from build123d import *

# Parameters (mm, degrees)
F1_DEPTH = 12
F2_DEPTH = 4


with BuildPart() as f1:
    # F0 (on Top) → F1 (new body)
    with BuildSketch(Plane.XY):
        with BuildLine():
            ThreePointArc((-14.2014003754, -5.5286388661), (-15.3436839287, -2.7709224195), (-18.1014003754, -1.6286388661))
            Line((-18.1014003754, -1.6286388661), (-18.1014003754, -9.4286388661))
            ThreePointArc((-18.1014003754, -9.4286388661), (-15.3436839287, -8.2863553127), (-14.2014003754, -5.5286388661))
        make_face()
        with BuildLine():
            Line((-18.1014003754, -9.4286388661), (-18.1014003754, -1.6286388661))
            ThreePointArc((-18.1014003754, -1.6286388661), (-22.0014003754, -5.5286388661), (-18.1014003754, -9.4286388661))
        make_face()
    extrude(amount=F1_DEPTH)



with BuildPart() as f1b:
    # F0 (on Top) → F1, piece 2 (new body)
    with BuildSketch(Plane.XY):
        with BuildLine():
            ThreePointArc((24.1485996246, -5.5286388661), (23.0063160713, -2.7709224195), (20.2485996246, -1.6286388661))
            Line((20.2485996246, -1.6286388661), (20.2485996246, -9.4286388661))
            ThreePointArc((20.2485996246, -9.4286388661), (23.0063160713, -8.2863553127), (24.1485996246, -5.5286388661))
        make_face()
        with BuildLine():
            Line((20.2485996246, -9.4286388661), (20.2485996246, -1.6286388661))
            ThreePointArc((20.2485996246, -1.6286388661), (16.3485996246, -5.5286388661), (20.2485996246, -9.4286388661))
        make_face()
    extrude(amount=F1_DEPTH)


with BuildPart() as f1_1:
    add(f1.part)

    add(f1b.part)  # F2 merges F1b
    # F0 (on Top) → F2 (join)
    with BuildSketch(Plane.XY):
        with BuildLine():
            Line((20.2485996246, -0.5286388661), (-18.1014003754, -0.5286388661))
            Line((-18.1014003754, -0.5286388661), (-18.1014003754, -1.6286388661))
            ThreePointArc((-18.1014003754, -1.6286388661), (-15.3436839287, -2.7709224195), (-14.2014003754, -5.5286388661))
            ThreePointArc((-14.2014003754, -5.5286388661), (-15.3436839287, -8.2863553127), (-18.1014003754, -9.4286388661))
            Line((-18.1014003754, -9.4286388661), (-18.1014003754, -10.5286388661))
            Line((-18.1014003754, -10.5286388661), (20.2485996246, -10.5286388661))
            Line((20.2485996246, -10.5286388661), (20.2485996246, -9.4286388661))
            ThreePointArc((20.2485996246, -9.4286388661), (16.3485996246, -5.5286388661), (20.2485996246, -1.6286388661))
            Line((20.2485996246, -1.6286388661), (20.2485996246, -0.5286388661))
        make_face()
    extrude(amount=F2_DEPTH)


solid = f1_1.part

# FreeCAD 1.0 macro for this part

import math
import FreeCAD as App
import Part
import Sketcher
Q = App.Units.Quantity

doc = App.newDocument("Part")
params = doc.addObject("Spreadsheet::Sheet", "Params")
for row, (alias, value) in enumerate([
    ("sketch1_radius", "3.9 mm"),
    ("pad1_length", "12 mm"),
    ("sketch2_radius", "3.9 mm"),
    ("pad2_length", "12 mm"),
    ("sketch3_radius", "3.9 mm"),
    ("sketch3_height", "1.1 mm"),
    ("sketch3_width", "38.35 mm"),
    ("pad3_length", "4 mm"),
], start=1):
    params.set(f"A{row}", alias)
    params.set(f"B{row}", "=" + value)
    params.setAlias(f"B{row}", alias)

body = doc.addObject("PartDesign::Body", "Body")

# Sketch on XY plane
sketch1 = doc.addObject("Sketcher::SketchObject", "Sketch")
body.addObject(sketch1)
sketch1.AttachmentSupport = (doc.XY_Plane, [""])
sketch1.MapMode = "FlatFace"
sketch1.addGeometry(Part.ArcOfCircle(Part.Circle(App.Vector(-18.1, -5.5, 0), App.Vector(0, 0, 1), 3.9), math.radians(0), math.radians(90)), False)
sketch1.addGeometry(Part.ArcOfCircle(Part.Circle(App.Vector(-18.1, -5.5, 0), App.Vector(0, 0, 1), 3.9), math.radians(90), math.radians(270)), False)
sketch1.addGeometry(Part.ArcOfCircle(Part.Circle(App.Vector(-18.1, -5.5, 0), App.Vector(0, 0, 1), 3.9), math.radians(-90), math.radians(0)), False)
sketch1.addConstraint(Sketcher.Constraint("Tangent", 0, 2, 1, 1))
sketch1.addConstraint(Sketcher.Constraint("Tangent", 1, 2, 2, 1))
sketch1.addConstraint(Sketcher.Constraint("Tangent", 2, 2, 0, 1))
sketch1.addConstraint(Sketcher.Constraint("Horizontal", 1, 3, 2, 2))
sketch1.addConstraint(Sketcher.Constraint("Vertical", 2, 3, 0, 2))
sketch1.addConstraint(Sketcher.Constraint("Vertical", 0, 2, 1, 2))
sketch1.addConstraint(Sketcher.Constraint("Radius", 0, Q("3.9 mm")))
sketch1.addConstraint(Sketcher.Constraint("DistanceX", 0, 3, -1, 1, Q("18.1014 mm")))
sketch1.addConstraint(Sketcher.Constraint("DistanceY", 0, 3, -1, 1, Q("5.528639 mm")))
sketch1.setExpression("Constraints[6]", "Params.sketch1_radius")
pad1 = doc.addObject("PartDesign::Pad", "Pad")
body.addObject(pad1)
pad1.Profile = sketch1
pad1.setExpression("Length", "Params.pad1_length")
body2 = doc.addObject("PartDesign::Body", "Body001")

# Sketch on XY plane
sketch2 = doc.addObject("Sketcher::SketchObject", "Sketch001")
body2.addObject(sketch2)
sketch2.AttachmentSupport = (doc.getObject("XY_Plane001"), [""])
sketch2.MapMode = "FlatFace"
sketch2.addGeometry(Part.ArcOfCircle(Part.Circle(App.Vector(20.2, -5.5, 0), App.Vector(0, 0, 1), 3.9), math.radians(0), math.radians(90)), False)
sketch2.addGeometry(Part.ArcOfCircle(Part.Circle(App.Vector(20.2, -5.5, 0), App.Vector(0, 0, 1), 3.9), math.radians(90), math.radians(270)), False)
sketch2.addGeometry(Part.ArcOfCircle(Part.Circle(App.Vector(20.2, -5.5, 0), App.Vector(0, 0, 1), 3.9), math.radians(-90), math.radians(0)), False)
sketch2.addConstraint(Sketcher.Constraint("Tangent", 0, 2, 1, 1))
sketch2.addConstraint(Sketcher.Constraint("Tangent", 1, 2, 2, 1))
sketch2.addConstraint(Sketcher.Constraint("Tangent", 2, 2, 0, 1))
sketch2.addConstraint(Sketcher.Constraint("Horizontal", 1, 3, 2, 2))
sketch2.addConstraint(Sketcher.Constraint("Vertical", 2, 3, 0, 2))
sketch2.addConstraint(Sketcher.Constraint("Vertical", 0, 2, 1, 2))
sketch2.addConstraint(Sketcher.Constraint("Radius", 0, Q("3.9 mm")))
sketch2.addConstraint(Sketcher.Constraint("DistanceX", -1, 1, 0, 3, Q("20.2486 mm")))
sketch2.addConstraint(Sketcher.Constraint("DistanceY", 0, 3, -1, 1, Q("5.528639 mm")))
sketch2.setExpression("Constraints[6]", "Params.sketch2_radius")
pad2 = doc.addObject("PartDesign::Pad", "Pad001")
body2.addObject(pad2)
pad2.Profile = sketch2
pad2.setExpression("Length", "Params.pad2_length")
body.AllowCompound = True
doc.recompute()

boolean = doc.addObject("PartDesign::Boolean", "Boolean")
body.addObject(boolean)
boolean.Type = "Fuse"
boolean.addObjects([body2])

# Sketch on XY plane
sketch3 = doc.addObject("Sketcher::SketchObject", "Sketch002")
body.addObject(sketch3)
sketch3.AttachmentSupport = (doc.XY_Plane, [""])
sketch3.MapMode = "FlatFace"
sketch3.addGeometry(Part.LineSegment(App.Vector(20.2, -0.5, 0), App.Vector(-18.1, -0.5, 0)), False)
sketch3.addGeometry(Part.LineSegment(App.Vector(-18.1, -0.5, 0), App.Vector(-18.1, -1.6, 0)), False)
sketch3.addGeometry(Part.ArcOfCircle(Part.Circle(App.Vector(-18.1, -5.5, 0), App.Vector(0, 0, 1), 3.9), math.radians(0), math.radians(90)), False)
sketch3.addGeometry(Part.ArcOfCircle(Part.Circle(App.Vector(-18.1, -5.5, 0), App.Vector(0, 0, 1), 3.9), math.radians(-90), math.radians(0)), False)
sketch3.addGeometry(Part.LineSegment(App.Vector(-18.1, -9.4, 0), App.Vector(-18.1, -10.5, 0)), False)
sketch3.addGeometry(Part.LineSegment(App.Vector(-18.1, -10.5, 0), App.Vector(20.2, -10.5, 0)), False)
sketch3.addGeometry(Part.LineSegment(App.Vector(20.2, -10.5, 0), App.Vector(20.2, -9.4, 0)), False)
sketch3.addGeometry(Part.ArcOfCircle(Part.Circle(App.Vector(20.2, -5.5, 0), App.Vector(0, 0, 1), 3.9), math.radians(90), math.radians(270)), False)
sketch3.addGeometry(Part.LineSegment(App.Vector(20.2, -1.6, 0), App.Vector(20.2, -0.5, 0)), False)
sketch3.addConstraint(Sketcher.Constraint("Coincident", 0, 2, 1, 1))
sketch3.addConstraint(Sketcher.Constraint("Coincident", 1, 2, 2, 2))
sketch3.addConstraint(Sketcher.Constraint("Tangent", 2, 1, 3, 2))
sketch3.addConstraint(Sketcher.Constraint("Coincident", 3, 1, 4, 1))
sketch3.addConstraint(Sketcher.Constraint("Coincident", 4, 2, 5, 1))
sketch3.addConstraint(Sketcher.Constraint("Coincident", 5, 2, 6, 1))
sketch3.addConstraint(Sketcher.Constraint("Coincident", 6, 2, 7, 2))
sketch3.addConstraint(Sketcher.Constraint("Coincident", 7, 1, 8, 1))
sketch3.addConstraint(Sketcher.Constraint("Coincident", 8, 2, 0, 1))
sketch3.addConstraint(Sketcher.Constraint("Horizontal", 0))
sketch3.addConstraint(Sketcher.Constraint("Vertical", 1))
sketch3.addConstraint(Sketcher.Constraint("Vertical", 4))
sketch3.addConstraint(Sketcher.Constraint("Horizontal", 5))
sketch3.addConstraint(Sketcher.Constraint("Vertical", 6))
sketch3.addConstraint(Sketcher.Constraint("Vertical", 8))
sketch3.addConstraint(Sketcher.Constraint("Equal", 2, 3))
sketch3.addConstraint(Sketcher.Constraint("Equal", 3, 7))
sketch3.addConstraint(Sketcher.Constraint("Horizontal", 3, 3, 7, 3))
sketch3.addConstraint(Sketcher.Constraint("Horizontal", 7, 3, 2, 1))
sketch3.addConstraint(Sketcher.Constraint("Vertical", 3, 3, 0, 2))
sketch3.addConstraint(Sketcher.Constraint("Vertical", 1, 2, 3, 1))
sketch3.addConstraint(Sketcher.Constraint("Vertical", 7, 3, 5, 2))
sketch3.addConstraint(Sketcher.Constraint("Vertical", 6, 2, 7, 1))
sketch3.addConstraint(Sketcher.Constraint("Equal", 1, 4))
sketch3.addConstraint(Sketcher.Constraint("Radius", 2, Q("3.9 mm")))
sketch3.addConstraint(Sketcher.Constraint("DistanceY", 1, 2, 1, 1, Q("1.1 mm")))
sketch3.addConstraint(Sketcher.Constraint("DistanceX", 0, 2, 0, 1, Q("38.35 mm")))
sketch3.addConstraint(Sketcher.Constraint("DistanceX", 2, 3, -1, 1, Q("18.1014 mm")))
sketch3.addConstraint(Sketcher.Constraint("DistanceY", 2, 3, -1, 1, Q("5.528639 mm")))
sketch3.setExpression("Constraints[24]", "Params.sketch3_radius")
sketch3.setExpression("Constraints[25]", "Params.sketch3_height")
sketch3.setExpression("Constraints[26]", "Params.sketch3_width")
pad3 = doc.addObject("PartDesign::Pad", "Pad002")
body.addObject(pad3)
pad3.Profile = sketch3
pad3.setExpression("Length", "Params.pad3_length")

doc.recompute()
